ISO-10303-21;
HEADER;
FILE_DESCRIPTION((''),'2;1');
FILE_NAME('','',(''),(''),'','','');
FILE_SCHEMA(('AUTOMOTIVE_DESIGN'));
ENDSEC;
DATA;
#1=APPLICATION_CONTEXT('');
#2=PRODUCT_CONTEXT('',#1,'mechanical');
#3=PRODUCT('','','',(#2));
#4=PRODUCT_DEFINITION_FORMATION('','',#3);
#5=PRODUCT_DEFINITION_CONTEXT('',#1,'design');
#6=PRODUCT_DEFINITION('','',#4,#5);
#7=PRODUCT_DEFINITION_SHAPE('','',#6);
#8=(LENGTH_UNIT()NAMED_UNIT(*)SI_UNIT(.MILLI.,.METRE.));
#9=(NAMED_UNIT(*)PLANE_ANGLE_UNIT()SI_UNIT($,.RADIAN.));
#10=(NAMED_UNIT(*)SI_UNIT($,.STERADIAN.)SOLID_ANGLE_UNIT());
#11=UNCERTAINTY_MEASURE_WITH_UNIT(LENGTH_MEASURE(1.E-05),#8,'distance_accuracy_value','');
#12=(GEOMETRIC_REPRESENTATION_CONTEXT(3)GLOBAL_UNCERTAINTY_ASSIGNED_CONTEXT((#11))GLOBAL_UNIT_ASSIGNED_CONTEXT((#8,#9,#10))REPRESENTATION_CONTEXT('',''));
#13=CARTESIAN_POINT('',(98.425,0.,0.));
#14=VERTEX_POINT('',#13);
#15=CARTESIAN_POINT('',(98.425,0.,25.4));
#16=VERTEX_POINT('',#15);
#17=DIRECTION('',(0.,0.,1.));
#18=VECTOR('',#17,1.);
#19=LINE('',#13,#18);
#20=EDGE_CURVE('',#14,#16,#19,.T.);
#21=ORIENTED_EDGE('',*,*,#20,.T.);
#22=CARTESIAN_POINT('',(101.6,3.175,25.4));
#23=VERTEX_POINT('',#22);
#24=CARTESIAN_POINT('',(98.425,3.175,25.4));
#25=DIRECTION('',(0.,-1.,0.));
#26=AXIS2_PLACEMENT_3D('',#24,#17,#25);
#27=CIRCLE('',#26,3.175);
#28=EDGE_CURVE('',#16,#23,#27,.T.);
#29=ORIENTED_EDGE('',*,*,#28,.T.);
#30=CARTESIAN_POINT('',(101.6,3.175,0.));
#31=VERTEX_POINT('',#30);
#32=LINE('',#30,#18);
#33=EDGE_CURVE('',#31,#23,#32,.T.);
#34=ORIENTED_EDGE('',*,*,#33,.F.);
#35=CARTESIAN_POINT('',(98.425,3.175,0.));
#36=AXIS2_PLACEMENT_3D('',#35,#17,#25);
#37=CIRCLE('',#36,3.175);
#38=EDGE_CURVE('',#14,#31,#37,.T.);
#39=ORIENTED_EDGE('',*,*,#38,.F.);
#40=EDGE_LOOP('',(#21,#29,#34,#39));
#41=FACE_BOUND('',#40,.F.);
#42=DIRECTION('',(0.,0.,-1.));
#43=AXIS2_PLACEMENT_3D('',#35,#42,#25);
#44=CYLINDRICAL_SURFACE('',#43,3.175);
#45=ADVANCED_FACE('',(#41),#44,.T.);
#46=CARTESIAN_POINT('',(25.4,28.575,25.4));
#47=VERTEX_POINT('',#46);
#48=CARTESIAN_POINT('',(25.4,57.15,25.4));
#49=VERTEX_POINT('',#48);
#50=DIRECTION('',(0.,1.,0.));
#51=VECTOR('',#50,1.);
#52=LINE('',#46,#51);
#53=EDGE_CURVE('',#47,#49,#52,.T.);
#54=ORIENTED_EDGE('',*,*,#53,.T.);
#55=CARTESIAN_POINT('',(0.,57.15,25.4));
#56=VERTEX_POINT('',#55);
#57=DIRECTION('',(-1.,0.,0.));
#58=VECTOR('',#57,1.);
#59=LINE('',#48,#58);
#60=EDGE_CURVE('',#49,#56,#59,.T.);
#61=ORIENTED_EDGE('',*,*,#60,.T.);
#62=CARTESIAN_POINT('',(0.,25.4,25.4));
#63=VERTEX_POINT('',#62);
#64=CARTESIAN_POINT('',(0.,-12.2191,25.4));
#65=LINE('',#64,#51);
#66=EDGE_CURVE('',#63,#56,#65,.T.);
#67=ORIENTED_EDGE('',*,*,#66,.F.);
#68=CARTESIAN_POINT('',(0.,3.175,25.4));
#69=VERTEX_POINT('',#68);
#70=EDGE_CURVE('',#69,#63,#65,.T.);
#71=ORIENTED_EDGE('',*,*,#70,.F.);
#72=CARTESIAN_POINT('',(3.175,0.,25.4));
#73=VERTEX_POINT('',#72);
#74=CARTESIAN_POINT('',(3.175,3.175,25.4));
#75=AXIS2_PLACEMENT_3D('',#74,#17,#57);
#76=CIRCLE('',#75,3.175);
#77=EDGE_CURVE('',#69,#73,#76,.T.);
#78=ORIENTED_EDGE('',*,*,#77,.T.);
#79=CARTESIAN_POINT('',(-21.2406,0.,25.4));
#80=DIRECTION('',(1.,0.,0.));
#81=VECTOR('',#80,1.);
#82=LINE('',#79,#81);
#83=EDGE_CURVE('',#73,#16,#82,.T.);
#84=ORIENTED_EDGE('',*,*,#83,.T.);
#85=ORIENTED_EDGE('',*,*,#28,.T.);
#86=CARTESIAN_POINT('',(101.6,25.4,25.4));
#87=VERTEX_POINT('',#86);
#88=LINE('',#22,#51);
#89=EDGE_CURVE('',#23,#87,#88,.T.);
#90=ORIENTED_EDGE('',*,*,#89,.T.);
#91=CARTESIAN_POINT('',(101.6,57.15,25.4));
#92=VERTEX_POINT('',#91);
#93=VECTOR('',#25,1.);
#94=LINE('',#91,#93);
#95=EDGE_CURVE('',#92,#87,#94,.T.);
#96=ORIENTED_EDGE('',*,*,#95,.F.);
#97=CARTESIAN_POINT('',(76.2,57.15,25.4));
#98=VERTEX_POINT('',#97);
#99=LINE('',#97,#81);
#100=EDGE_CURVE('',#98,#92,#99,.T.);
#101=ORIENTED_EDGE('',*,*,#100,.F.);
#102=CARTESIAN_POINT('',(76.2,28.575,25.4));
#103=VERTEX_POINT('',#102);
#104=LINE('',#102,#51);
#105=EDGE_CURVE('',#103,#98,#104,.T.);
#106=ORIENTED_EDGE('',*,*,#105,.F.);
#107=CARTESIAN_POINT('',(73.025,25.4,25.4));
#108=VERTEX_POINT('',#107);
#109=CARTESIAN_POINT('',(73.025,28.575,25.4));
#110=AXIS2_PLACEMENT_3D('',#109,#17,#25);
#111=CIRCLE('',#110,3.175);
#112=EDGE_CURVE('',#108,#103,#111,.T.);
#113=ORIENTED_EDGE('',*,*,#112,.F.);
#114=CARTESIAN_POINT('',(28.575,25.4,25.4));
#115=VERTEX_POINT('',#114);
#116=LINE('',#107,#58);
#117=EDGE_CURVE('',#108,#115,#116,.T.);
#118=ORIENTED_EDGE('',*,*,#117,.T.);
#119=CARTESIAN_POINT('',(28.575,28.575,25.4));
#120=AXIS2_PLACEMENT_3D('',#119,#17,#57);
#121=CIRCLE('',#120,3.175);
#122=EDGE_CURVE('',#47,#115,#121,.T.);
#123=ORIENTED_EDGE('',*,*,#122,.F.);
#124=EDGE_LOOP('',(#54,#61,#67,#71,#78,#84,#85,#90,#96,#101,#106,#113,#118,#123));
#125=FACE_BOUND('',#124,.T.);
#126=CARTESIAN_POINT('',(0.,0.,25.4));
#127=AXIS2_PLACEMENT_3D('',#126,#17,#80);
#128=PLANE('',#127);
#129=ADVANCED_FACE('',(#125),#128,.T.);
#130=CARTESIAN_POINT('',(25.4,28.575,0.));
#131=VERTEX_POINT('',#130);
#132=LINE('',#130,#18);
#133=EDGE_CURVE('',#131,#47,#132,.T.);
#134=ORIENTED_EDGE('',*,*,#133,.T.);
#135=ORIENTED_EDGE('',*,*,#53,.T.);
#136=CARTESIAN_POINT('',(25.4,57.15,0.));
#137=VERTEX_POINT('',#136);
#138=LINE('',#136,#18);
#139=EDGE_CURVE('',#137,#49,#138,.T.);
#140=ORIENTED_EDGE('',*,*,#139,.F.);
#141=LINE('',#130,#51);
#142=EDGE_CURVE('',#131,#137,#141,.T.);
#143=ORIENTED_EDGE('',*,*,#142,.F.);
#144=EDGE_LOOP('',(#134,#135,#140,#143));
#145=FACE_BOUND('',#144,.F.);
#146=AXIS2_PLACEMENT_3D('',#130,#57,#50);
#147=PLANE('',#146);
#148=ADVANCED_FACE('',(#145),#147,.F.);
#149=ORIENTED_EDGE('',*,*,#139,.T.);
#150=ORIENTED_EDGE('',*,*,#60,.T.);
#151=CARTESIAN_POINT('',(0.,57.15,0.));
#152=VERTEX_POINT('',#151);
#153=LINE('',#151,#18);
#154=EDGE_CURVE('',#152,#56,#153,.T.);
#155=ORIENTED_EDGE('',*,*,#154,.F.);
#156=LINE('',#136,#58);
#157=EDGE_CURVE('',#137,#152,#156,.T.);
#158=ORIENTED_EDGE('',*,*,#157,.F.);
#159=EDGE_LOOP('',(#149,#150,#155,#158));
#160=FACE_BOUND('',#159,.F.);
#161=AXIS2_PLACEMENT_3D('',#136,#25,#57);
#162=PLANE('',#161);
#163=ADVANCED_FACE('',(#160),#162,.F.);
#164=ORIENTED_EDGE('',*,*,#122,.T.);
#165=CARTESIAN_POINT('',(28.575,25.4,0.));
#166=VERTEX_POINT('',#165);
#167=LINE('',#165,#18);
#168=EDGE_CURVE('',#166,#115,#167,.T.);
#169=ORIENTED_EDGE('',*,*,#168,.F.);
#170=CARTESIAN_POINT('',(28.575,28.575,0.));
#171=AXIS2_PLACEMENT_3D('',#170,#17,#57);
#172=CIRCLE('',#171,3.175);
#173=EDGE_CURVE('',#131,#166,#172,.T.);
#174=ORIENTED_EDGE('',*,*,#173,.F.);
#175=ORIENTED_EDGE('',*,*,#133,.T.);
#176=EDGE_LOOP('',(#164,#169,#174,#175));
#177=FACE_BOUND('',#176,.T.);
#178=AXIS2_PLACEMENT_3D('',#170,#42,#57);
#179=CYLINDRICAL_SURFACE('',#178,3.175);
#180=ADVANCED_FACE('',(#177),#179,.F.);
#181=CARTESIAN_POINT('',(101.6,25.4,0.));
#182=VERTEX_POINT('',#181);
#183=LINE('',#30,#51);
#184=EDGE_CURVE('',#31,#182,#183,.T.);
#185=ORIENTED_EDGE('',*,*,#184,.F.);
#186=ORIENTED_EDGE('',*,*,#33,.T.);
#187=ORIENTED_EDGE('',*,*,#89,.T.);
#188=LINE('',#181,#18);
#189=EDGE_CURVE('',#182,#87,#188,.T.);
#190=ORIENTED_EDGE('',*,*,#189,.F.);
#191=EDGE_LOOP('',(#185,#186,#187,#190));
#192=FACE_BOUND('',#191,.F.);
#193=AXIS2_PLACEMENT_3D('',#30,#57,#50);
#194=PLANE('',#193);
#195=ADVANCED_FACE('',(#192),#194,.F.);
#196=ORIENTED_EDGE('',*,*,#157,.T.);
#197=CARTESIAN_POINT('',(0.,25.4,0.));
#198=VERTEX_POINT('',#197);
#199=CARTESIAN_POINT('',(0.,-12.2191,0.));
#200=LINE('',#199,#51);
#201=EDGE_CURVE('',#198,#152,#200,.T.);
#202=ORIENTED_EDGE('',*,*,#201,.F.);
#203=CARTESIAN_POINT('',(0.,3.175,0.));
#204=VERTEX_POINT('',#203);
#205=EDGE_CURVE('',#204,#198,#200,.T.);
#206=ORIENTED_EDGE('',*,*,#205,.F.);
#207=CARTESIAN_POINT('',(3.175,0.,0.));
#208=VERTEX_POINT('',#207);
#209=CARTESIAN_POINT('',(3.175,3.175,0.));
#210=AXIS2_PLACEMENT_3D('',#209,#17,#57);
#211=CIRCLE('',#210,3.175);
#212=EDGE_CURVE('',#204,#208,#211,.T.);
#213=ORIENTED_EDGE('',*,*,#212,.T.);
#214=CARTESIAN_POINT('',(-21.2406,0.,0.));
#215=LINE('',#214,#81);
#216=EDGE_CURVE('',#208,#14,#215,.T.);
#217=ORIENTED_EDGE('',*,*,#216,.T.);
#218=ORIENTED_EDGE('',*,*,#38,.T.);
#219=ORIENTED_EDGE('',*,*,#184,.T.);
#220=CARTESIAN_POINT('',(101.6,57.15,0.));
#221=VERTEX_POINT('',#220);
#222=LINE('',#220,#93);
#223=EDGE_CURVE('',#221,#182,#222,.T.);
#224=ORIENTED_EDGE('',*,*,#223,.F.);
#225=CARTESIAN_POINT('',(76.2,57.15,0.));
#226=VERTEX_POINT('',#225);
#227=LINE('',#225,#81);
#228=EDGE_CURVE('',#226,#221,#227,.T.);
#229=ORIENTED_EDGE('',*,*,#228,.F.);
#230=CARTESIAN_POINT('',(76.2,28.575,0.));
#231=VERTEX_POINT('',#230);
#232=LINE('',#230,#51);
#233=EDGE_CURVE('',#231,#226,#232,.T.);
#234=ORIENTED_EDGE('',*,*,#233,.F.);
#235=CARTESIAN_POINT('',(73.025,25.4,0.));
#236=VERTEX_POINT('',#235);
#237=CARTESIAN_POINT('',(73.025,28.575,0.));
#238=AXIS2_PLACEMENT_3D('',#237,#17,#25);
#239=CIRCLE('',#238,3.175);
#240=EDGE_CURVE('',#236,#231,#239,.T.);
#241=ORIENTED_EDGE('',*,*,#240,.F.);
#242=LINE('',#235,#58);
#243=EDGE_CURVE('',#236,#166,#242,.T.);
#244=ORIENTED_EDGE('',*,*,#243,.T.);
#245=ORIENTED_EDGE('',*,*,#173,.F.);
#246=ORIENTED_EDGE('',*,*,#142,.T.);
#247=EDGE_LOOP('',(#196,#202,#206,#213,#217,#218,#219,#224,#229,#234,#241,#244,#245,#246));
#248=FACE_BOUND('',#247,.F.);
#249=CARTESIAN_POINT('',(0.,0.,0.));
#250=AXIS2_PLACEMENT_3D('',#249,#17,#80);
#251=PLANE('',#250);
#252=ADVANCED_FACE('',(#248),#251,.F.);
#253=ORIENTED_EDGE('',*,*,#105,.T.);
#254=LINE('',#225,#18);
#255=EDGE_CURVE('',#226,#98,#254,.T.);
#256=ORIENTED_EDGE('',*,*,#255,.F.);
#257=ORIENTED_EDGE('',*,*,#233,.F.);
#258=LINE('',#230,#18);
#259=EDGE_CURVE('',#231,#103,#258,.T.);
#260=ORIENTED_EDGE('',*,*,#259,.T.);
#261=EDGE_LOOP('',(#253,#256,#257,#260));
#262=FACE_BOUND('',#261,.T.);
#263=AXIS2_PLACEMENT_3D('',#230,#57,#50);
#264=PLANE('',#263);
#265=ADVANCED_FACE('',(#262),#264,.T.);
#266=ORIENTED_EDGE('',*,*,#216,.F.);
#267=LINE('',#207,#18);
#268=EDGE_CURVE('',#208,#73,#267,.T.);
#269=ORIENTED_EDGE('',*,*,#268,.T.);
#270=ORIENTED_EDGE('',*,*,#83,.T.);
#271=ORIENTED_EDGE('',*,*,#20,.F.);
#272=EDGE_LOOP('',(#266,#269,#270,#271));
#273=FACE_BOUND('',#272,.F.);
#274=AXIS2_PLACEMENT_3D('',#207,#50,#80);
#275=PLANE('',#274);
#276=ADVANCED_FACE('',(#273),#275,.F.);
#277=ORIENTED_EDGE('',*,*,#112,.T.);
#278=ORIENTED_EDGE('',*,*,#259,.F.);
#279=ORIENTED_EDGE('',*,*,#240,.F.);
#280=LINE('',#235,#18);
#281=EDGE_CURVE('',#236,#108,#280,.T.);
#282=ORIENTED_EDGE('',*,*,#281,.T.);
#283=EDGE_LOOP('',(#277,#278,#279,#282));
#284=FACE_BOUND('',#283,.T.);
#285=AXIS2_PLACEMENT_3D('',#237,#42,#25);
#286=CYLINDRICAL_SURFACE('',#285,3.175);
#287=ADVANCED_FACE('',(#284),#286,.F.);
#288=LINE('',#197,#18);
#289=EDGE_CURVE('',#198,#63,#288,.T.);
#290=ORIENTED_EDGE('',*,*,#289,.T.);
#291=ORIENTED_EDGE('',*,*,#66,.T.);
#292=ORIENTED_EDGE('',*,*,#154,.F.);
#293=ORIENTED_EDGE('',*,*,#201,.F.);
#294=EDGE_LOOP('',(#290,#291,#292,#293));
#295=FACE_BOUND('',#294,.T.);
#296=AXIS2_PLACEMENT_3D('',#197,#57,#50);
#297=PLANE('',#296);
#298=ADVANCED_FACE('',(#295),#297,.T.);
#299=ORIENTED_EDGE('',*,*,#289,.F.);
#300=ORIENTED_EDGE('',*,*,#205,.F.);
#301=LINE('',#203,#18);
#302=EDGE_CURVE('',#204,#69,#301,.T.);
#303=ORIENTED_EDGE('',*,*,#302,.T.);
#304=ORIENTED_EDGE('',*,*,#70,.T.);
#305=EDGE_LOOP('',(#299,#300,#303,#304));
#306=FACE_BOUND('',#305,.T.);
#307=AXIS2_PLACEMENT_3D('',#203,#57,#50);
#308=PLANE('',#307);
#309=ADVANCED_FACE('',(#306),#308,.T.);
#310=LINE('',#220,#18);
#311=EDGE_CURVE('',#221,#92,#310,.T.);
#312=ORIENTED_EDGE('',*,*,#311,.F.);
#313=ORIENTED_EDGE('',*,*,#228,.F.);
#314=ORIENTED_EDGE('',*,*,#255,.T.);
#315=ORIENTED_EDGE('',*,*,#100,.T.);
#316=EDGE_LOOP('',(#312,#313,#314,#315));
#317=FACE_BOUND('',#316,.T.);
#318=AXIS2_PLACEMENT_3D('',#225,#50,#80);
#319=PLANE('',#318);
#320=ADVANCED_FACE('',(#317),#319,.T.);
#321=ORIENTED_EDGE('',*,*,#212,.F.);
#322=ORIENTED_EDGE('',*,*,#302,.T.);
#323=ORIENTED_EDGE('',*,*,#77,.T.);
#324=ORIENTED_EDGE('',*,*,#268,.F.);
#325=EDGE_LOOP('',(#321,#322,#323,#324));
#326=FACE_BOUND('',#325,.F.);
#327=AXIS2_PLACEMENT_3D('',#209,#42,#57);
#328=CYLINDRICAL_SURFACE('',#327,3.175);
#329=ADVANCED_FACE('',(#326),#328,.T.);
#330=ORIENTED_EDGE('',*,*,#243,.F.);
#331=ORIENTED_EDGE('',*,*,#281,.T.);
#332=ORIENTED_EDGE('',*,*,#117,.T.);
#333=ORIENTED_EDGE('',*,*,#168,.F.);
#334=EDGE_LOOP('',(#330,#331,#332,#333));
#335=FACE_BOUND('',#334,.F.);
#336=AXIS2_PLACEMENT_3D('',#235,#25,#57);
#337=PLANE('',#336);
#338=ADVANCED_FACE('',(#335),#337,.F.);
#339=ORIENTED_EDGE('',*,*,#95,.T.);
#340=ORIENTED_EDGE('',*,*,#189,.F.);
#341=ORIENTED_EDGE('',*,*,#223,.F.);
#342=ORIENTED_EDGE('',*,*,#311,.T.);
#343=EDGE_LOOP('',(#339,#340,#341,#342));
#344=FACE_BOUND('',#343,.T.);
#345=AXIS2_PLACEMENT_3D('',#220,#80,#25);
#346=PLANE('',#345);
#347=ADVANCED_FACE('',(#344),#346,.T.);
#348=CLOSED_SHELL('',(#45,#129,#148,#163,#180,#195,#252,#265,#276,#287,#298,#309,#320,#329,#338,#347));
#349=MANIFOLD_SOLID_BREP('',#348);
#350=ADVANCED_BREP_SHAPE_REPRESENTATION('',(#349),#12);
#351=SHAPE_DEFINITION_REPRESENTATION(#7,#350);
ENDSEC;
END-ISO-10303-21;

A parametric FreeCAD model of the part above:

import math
import FreeCAD as App
import Part
import Sketcher
from FreeCAD import Vector
Q = App.Units.Quantity

doc = App.newDocument("Part")
body = doc.addObject("PartDesign::Body", "Body")

# Sketch on XY plane
sketch1 = body.newObject("Sketcher::SketchObject", "Sketch")
sketch1.AttachmentSupport = (doc.getObject("XY_Plane"), [""])
sketch1.MapMode = "FlatFace"
sketch1.addGeometry([
    Part.ArcOfCircle(Part.Circle(Vector(3.2, 3.2, 0), Vector(0, 0, 1), 3.2), math.radians(180), math.radians(270)),  # 0
    Part.LineSegment(Vector(3.2, 0, 0), Vector(98.4, 0, 0)),  # 1
    Part.ArcOfCircle(Part.Circle(Vector(98.4, 3.2, 0), Vector(0, 0, 1), 3.2), math.radians(-90), math.radians(0)),  # 2
    Part.LineSegment(Vector(101.6, 3.2, 0), Vector(101.6, 57.1, 0)),  # 3
    Part.LineSegment(Vector(101.6, 57.1, 0), Vector(76.2, 57.1, 0)),  # 4
    Part.LineSegment(Vector(76.2, 57.1, 0), Vector(76.2, 28.6, 0)),  # 5
    Part.ArcOfCircle(Part.Circle(Vector(73, 28.6, 0), Vector(0, 0, 1), 3.2), math.radians(-90), math.radians(0)),  # 6
    Part.LineSegment(Vector(73, 25.4, 0), Vector(28.6, 25.4, 0)),  # 7
    Part.ArcOfCircle(Part.Circle(Vector(28.6, 28.6, 0), Vector(0, 0, 1), 3.2), math.radians(180), math.radians(270)),  # 8
    Part.LineSegment(Vector(25.4, 28.6, 0), Vector(25.4, 57.1, 0)),  # 9
    Part.LineSegment(Vector(25.4, 57.1, 0), Vector(0, 57.1, 0)),  # 10
    Part.LineSegment(Vector(0, 57.1, 0), Vector(0, 3.2, 0)),  # 11
], False)
sketch1.addConstraint([
    Sketcher.Constraint("Tangent", 0, 2, 1, 1),
    Sketcher.Constraint("Tangent", 1, 2, 2, 1),
    Sketcher.Constraint("Tangent", 2, 2, 3, 1),
    Sketcher.Constraint("Coincident", 3, 2, 4, 1),
    Sketcher.Constraint("Coincident", 4, 2, 5, 1),
    Sketcher.Constraint("Tangent", 5, 2, 6, 2),
    Sketcher.Constraint("Tangent", 6, 1, 7, 1),
    Sketcher.Constraint("Tangent", 7, 2, 8, 2),
    Sketcher.Constraint("Tangent", 8, 1, 9, 1),
    Sketcher.Constraint("Coincident", 9, 2, 10, 1),
    Sketcher.Constraint("Coincident", 10, 2, 11, 1),
    Sketcher.Constraint("Tangent", 11, 2, 0, 1),
    Sketcher.Constraint("Horizontal", 1),
    Sketcher.Constraint("Vertical", 3),
    Sketcher.Constraint("Horizontal", 4),
    Sketcher.Constraint("Vertical", 5),
    Sketcher.Constraint("Horizontal", 7),
    Sketcher.Constraint("Vertical", 9),
    Sketcher.Constraint("Horizontal", 10),
    Sketcher.Constraint("Vertical", 11),
    Sketcher.Constraint("Equal", 0, 2),
    Sketcher.Constraint("Equal", 2, 6),
    Sketcher.Constraint("Equal", 6, 8),
    Sketcher.Constraint("PointOnObject", 0, 2, -1),
    Sketcher.Constraint("PointOnObject", 10, 2, -2),
    Sketcher.Constraint("Horizontal", 4, 2, 9, 2),
    Sketcher.Constraint("Equal", 4, 10),
    Sketcher.Constraint("DistanceX", 4, 2, 4, 1, Q("1 in")),
    Sketcher.Constraint("DistanceX", -1, 1, 2, 2, Q("4 in")),
    Sketcher.Constraint("DistanceY", -1, 1, 6, 1, Q("1 in")),
    Sketcher.Constraint("Radius", 0, Q("0.125 in")),
    Sketcher.Constraint("DistanceY", -1, 1, 3, 2, Q("2.25 in")),
])
pad1 = body.newObject("PartDesign::Pad", "Pad")
pad1.Profile = sketch1
pad1.Length = Q("1 in")

doc.recompute()
